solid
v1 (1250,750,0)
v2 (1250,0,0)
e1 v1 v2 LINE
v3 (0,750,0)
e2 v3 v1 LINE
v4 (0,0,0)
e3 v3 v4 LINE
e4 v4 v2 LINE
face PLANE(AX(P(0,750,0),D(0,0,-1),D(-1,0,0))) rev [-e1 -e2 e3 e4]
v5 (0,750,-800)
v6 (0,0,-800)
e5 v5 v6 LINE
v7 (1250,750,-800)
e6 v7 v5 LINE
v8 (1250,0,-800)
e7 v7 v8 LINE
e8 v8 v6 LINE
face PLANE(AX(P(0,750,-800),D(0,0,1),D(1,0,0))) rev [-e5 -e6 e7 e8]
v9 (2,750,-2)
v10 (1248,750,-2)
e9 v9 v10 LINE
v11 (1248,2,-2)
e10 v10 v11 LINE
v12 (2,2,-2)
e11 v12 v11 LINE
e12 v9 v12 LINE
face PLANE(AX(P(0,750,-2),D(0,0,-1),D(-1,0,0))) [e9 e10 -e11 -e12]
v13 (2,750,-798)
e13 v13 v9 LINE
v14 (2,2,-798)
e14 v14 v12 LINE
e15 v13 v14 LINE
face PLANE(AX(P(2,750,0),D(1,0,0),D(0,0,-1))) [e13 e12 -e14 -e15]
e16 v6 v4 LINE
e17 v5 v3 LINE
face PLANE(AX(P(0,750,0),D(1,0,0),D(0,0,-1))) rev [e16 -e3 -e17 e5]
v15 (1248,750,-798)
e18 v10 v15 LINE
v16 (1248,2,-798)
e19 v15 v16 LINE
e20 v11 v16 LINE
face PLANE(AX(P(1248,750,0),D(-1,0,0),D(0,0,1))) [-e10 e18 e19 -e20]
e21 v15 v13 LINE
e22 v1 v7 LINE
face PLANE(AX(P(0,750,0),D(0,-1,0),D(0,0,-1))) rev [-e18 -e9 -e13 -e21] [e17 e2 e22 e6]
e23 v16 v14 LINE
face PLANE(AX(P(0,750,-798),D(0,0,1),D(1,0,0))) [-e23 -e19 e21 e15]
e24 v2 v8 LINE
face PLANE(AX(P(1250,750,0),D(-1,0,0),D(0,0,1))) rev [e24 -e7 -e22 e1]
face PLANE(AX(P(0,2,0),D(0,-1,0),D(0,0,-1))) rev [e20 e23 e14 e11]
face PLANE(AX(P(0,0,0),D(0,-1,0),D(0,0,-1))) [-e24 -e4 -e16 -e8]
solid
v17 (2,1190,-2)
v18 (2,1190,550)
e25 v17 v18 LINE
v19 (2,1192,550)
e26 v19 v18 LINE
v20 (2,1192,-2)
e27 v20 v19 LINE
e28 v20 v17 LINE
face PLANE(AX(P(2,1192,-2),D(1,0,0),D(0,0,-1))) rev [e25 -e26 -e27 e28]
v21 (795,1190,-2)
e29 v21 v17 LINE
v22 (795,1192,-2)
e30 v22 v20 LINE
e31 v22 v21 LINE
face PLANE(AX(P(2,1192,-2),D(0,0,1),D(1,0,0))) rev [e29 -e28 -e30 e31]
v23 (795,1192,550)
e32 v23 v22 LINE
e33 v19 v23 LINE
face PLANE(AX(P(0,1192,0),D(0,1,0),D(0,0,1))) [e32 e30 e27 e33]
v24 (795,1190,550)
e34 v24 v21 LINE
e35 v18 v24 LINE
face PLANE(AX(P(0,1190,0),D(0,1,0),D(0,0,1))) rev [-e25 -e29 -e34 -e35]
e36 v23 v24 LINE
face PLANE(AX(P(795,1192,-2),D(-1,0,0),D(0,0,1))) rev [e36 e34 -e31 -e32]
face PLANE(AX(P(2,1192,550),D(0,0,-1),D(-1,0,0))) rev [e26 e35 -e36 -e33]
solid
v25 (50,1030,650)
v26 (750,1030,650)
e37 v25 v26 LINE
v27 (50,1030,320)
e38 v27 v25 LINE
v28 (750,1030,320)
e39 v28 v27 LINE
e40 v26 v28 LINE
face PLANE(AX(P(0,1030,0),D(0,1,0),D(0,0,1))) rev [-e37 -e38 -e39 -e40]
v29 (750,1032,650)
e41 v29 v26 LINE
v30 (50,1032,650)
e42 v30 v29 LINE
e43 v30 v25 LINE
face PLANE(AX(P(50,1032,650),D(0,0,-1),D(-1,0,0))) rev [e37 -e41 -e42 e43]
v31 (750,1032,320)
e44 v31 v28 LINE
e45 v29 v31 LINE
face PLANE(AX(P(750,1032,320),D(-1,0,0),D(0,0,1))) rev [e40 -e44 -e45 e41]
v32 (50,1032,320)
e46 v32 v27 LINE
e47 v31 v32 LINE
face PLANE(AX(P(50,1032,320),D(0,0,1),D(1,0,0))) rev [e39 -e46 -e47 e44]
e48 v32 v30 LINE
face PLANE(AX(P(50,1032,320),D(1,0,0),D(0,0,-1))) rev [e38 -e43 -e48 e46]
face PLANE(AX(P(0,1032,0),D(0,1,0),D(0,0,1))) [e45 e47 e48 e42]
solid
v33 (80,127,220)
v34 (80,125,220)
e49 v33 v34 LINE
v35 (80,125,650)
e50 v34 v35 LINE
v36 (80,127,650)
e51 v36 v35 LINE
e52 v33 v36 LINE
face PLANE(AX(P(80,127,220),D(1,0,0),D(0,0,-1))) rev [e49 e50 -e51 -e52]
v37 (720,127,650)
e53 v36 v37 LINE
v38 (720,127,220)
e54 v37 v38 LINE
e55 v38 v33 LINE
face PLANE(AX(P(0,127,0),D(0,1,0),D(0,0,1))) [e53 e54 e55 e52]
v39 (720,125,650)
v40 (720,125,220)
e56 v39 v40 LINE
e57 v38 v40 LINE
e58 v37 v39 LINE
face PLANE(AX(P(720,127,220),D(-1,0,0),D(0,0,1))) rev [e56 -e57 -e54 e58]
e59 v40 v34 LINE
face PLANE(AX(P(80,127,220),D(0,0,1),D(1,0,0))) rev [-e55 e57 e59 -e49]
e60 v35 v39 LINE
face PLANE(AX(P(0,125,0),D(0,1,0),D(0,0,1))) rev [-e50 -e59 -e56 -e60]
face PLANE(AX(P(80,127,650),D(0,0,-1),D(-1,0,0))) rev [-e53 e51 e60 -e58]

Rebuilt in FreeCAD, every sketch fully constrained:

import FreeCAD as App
import Part
import Sketcher
Q = App.Units.Quantity


def faces_at(feature, points):
    """Names of the faces that lie closest to the given points."""
    faces = feature.Shape.Faces
    near = lambda p: min(range(len(faces)), key=lambda i: faces[i].distToShape(Part.Vertex(*p))[0])
    return sorted({f"Face{near(p) + 1}" for p in points})

doc = App.newDocument("Part")
body = doc.addObject("PartDesign::Body", "Body")

# Sketch on XZ plane
sketch1 = doc.addObject("Sketcher::SketchObject", "Sketch")
body.addObject(sketch1)
sketch1.AttachmentSupport = (doc.XZ_Plane, [""])
sketch1.MapMode = "FlatFace"
sketch1.addGeometry([
    Part.LineSegment(App.Vector(0, -800, 0), App.Vector(0, 0, 0)),
    Part.LineSegment(App.Vector(0, 0, 0), App.Vector(1250, 0, 0)),
    Part.LineSegment(App.Vector(1250, 0, 0), App.Vector(1250, -800, 0)),
    Part.LineSegment(App.Vector(1250, -800, 0), App.Vector(0, -800, 0)),
], False)
sketch1.addConstraint([
    Sketcher.Constraint("Coincident", 0, 2, 1, 1),
    Sketcher.Constraint("Coincident", 1, 2, 2, 1),
    Sketcher.Constraint("Coincident", 2, 2, 3, 1),
    Sketcher.Constraint("Coincident", 3, 2, 0, 1),
    Sketcher.Constraint("Vertical", 0),
    Sketcher.Constraint("Horizontal", 1),
    Sketcher.Constraint("Vertical", 2),
    Sketcher.Constraint("Horizontal", 3),
    Sketcher.Constraint("Coincident", 0, 2, -1, 1),
    Sketcher.Constraint("DistanceX", 1, 1, 1, 2, Q("1250 mm")),
    Sketcher.Constraint("DistanceY", 0, 1, 0, 2, Q("800 mm")),
])
pad1 = doc.addObject("PartDesign::Pad", "Pad")
body.addObject(pad1)
pad1.Profile = sketch1
pad1.Length = 750
pad1.Reversed = True
doc.recompute()

thickness = doc.addObject("PartDesign::Thickness", "Thickness")
body.addObject(thickness)
thickness.Base = (pad1, faces_at(pad1, [(625, 750, -400)]))
thickness.Value = 2
thickness.Reversed = True
thickness.Join = "Intersection"
body2 = doc.addObject("PartDesign::Body", "Body001")

# Sketch on XZ plane
sketch2 = doc.addObject("Sketcher::SketchObject", "Sketch001")
body2.addObject(sketch2)
sketch2.AttachmentSupport = (doc.getObject("XZ_Plane001"), [""])
sketch2.MapMode = "FlatFace"
sketch2.AttachmentOffset = App.Placement(App.Vector(0, 0, -125), App.Rotation())
sketch2.addGeometry([
    Part.LineSegment(App.Vector(80, 220, 0), App.Vector(80, 650, 0)),
    Part.LineSegment(App.Vector(80, 650, 0), App.Vector(720, 650, 0)),
    Part.LineSegment(App.Vector(720, 650, 0), App.Vector(720, 220, 0)),
    Part.LineSegment(App.Vector(720, 220, 0), App.Vector(80, 220, 0)),
], False)
sketch2.addConstraint([
    Sketcher.Constraint("Coincident", 0, 2, 1, 1),
    Sketcher.Constraint("Coincident", 1, 2, 2, 1),
    Sketcher.Constraint("Coincident", 2, 2, 3, 1),
    Sketcher.Constraint("Coincident", 3, 2, 0, 1),
    Sketcher.Constraint("Vertical", 0),
    Sketcher.Constraint("Horizontal", 1),
    Sketcher.Constraint("Vertical", 2),
    Sketcher.Constraint("Horizontal", 3),
    Sketcher.Constraint("DistanceX", 1, 1, 1, 2, Q("640 mm")),
    Sketcher.Constraint("DistanceY", 0, 1, 0, 2, Q("430 mm")),
    Sketcher.Constraint("DistanceX", -1, 1, 0, 2, Q("80 mm")),
    Sketcher.Constraint("DistanceY", -1, 1, 0, 2, Q("650 mm")),
])
pad2 = doc.addObject("PartDesign::Pad", "Pad001")
body2.addObject(pad2)
pad2.Profile = sketch2
pad2.Length = 2
pad2.Reversed = True
body3 = doc.addObject("PartDesign::Body", "Body002")

# Sketch on XZ plane
sketch3 = doc.addObject("Sketcher::SketchObject", "Sketch002")
body3.addObject(sketch3)
sketch3.AttachmentSupport = (doc.getObject("XZ_Plane002"), [""])
sketch3.MapMode = "FlatFace"
sketch3.AttachmentOffset = App.Placement(App.Vector(0, 0, -1030), App.Rotation())
sketch3.addGeometry([
    Part.LineSegment(App.Vector(50, 320, 0), App.Vector(50, 650, 0)),
    Part.LineSegment(App.Vector(50, 650, 0), App.Vector(750, 650, 0)),
    Part.LineSegment(App.Vector(750, 650, 0), App.Vector(750, 320, 0)),
    Part.LineSegment(App.Vector(750, 320, 0), App.Vector(50, 320, 0)),
], False)
sketch3.addConstraint([
    Sketcher.Constraint("Coincident", 0, 2, 1, 1),
    Sketcher.Constraint("Coincident", 1, 2, 2, 1),
    Sketcher.Constraint("Coincident", 2, 2, 3, 1),
    Sketcher.Constraint("Coincident", 3, 2, 0, 1),
    Sketcher.Constraint("Vertical", 0),
    Sketcher.Constraint("Horizontal", 1),
    Sketcher.Constraint("Vertical", 2),
    Sketcher.Constraint("Horizontal", 3),
    Sketcher.Constraint("DistanceX", 1, 1, 1, 2, Q("700 mm")),
    Sketcher.Constraint("DistanceY", 0, 1, 0, 2, Q("330 mm")),
    Sketcher.Constraint("DistanceX", -1, 1, 0, 2, Q("50 mm")),
    Sketcher.Constraint("DistanceY", -1, 1, 0, 2, Q("650 mm")),
])
pad3 = doc.addObject("PartDesign::Pad", "Pad002")
body3.addObject(pad3)
pad3.Profile = sketch3
pad3.Length = 2
pad3.Reversed = True
body4 = doc.addObject("PartDesign::Body", "Body003")

# Sketch on XZ plane
sketch4 = doc.addObject("Sketcher::SketchObject", "Sketch003")
body4.addObject(sketch4)
sketch4.AttachmentSupport = (doc.getObject("XZ_Plane003"), [""])
sketch4.MapMode = "FlatFace"
sketch4.AttachmentOffset = App.Placement(App.Vector(0, 0, -1190), App.Rotation())
sketch4.addGeometry([
    Part.LineSegment(App.Vector(2, -2, 0), App.Vector(2, 550, 0)),
    Part.LineSegment(App.Vector(2, 550, 0), App.Vector(795, 550, 0)),
    Part.LineSegment(App.Vector(795, 550, 0), App.Vector(795, -2, 0)),
    Part.LineSegment(App.Vector(795, -2, 0), App.Vector(2, -2, 0)),
], False)
sketch4.addConstraint([
    Sketcher.Constraint("Coincident", 0, 2, 1, 1),
    Sketcher.Constraint("Coincident", 1, 2, 2, 1),
    Sketcher.Constraint("Coincident", 2, 2, 3, 1),
    Sketcher.Constraint("Coincident", 3, 2, 0, 1),
    Sketcher.Constraint("Vertical", 0),
    Sketcher.Constraint("Horizontal", 1),
    Sketcher.Constraint("Vertical", 2),
    Sketcher.Constraint("Horizontal", 3),
    Sketcher.Constraint("DistanceX", 1, 1, 1, 2, Q("793 mm")),
    Sketcher.Constraint("DistanceY", 0, 1, 0, 2, Q("552 mm")),
    Sketcher.Constraint("DistanceX", -1, 1, 0, 2, Q("2 mm")),
    Sketcher.Constraint("DistanceY", -1, 1, 0, 2, Q("550 mm")),
])
pad4 = doc.addObject("PartDesign::Pad", "Pad003")
body4.addObject(pad4)
pad4.Profile = sketch4
pad4.Length = 2
pad4.Reversed = True

doc.recompute()
